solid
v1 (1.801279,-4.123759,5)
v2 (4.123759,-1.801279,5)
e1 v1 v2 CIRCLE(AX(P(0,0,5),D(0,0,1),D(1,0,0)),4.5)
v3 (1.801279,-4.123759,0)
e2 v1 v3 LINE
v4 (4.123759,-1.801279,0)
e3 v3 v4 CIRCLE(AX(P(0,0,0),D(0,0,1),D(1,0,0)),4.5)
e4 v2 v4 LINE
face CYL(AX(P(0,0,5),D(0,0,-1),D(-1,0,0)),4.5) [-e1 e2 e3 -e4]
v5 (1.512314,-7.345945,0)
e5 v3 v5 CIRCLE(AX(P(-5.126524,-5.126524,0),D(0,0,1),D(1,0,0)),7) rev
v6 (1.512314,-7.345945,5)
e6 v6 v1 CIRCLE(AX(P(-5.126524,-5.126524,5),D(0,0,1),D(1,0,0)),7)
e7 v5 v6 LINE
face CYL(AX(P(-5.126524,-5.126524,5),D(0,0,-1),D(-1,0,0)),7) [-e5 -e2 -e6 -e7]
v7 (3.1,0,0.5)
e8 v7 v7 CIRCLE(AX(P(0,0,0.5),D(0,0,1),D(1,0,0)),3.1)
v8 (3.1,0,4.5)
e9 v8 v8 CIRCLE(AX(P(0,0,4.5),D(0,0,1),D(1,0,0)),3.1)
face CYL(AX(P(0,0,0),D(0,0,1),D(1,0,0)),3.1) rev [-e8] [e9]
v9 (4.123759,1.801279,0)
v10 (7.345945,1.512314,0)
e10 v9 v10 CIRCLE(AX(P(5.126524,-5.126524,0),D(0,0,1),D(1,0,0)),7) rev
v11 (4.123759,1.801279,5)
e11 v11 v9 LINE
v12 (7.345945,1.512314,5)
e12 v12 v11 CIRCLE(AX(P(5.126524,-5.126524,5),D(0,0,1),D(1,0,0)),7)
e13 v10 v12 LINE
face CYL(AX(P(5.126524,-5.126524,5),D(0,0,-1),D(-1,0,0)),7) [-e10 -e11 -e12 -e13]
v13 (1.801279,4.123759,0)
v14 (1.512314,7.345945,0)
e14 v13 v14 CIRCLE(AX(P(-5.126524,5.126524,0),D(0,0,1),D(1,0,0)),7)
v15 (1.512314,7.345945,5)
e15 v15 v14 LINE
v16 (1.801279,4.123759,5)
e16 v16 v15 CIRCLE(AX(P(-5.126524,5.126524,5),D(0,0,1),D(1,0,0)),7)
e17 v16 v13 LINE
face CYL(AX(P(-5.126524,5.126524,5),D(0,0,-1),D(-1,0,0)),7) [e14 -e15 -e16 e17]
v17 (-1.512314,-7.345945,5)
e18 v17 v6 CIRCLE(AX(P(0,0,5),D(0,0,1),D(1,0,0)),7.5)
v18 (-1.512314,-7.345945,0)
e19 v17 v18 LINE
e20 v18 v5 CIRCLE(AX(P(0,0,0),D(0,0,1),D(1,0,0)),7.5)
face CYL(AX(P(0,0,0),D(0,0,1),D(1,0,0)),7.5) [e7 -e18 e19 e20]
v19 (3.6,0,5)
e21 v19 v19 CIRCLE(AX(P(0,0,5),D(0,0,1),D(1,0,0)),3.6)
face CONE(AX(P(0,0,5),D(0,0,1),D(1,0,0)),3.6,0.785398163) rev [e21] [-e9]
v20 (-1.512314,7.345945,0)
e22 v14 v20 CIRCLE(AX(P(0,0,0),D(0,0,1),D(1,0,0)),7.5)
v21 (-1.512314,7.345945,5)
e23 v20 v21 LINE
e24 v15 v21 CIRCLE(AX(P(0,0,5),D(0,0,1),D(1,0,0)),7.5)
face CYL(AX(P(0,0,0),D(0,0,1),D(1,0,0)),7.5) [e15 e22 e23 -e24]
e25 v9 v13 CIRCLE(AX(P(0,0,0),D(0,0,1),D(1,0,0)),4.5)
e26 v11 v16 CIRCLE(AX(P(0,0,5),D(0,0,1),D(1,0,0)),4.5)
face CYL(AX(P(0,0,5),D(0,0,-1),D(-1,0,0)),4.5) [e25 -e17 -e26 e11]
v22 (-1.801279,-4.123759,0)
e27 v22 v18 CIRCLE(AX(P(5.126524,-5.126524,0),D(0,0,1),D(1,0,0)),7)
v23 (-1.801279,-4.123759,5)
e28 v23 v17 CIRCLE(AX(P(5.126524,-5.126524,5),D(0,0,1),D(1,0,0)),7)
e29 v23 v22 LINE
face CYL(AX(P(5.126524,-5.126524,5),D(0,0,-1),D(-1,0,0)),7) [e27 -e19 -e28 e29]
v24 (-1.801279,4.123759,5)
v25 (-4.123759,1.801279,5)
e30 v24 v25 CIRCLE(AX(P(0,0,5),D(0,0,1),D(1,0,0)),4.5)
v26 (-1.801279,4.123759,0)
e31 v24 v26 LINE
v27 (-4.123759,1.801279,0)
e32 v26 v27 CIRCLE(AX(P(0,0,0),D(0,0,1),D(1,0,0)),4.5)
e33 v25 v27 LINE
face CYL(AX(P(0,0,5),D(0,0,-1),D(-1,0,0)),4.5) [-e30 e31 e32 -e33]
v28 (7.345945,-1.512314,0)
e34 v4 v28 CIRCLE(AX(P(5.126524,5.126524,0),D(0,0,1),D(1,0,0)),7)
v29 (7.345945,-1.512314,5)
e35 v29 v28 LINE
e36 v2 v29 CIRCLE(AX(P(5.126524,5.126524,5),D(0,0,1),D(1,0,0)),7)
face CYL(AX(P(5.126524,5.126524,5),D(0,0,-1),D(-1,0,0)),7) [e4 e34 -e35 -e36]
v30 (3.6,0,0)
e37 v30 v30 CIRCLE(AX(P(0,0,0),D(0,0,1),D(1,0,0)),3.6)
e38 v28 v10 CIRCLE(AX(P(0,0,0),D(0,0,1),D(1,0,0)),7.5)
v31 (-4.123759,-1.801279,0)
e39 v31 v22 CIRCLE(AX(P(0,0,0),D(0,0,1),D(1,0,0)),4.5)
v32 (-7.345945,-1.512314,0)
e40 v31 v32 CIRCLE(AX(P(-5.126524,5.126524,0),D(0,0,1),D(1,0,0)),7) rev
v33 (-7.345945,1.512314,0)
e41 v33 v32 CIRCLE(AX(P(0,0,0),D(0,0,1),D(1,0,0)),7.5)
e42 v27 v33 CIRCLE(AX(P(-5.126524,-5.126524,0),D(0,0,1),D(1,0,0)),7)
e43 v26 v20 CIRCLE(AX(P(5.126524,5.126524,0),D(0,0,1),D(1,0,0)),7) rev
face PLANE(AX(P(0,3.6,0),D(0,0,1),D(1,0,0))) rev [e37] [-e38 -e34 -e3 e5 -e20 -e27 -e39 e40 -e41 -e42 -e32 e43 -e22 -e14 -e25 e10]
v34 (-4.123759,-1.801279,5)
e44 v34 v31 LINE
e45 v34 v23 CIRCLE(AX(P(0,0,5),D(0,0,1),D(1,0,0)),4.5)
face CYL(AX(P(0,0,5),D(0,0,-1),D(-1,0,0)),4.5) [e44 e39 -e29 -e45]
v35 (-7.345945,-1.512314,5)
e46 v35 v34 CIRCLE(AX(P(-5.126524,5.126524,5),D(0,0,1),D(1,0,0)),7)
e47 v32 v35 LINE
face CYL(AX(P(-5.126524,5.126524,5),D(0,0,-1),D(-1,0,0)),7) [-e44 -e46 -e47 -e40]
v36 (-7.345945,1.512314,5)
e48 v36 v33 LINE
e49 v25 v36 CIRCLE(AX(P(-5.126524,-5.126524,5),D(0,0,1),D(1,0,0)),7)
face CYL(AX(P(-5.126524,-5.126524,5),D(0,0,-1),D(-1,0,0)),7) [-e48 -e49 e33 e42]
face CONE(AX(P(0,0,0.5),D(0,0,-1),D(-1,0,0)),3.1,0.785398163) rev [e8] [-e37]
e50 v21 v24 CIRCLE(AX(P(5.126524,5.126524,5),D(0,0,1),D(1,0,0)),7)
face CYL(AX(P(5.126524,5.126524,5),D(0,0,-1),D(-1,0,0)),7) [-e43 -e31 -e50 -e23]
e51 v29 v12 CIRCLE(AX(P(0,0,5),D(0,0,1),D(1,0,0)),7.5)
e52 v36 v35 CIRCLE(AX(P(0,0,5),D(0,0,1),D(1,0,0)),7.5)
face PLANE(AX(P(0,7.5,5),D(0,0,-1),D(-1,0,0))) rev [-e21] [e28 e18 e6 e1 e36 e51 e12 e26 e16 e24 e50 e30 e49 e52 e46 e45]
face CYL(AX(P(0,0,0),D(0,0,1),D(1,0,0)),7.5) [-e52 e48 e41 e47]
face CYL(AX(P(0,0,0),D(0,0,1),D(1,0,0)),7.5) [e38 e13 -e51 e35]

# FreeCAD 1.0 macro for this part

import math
import FreeCAD as App
import Part
import Sketcher

doc = App.newDocument("Part")
body = doc.addObject("PartDesign::Body", "Body")

# Sketch on YZ plane
sketch1 = body.newObject("Sketcher::SketchObject", "Sketch")
sketch1.AttachmentSupport = (doc.getObject("YZ_Plane"), [""])
sketch1.MapMode = "FlatFace"
sketch1.addGeometry([
    Part.LineSegment(App.Vector(7.5, 5, 0), App.Vector(3.6, 5, 0)),  # 0
    Part.LineSegment(App.Vector(3.6, 5, 0), App.Vector(3.1, 4.5, 0)),  # 1
    Part.LineSegment(App.Vector(3.1, 4.5, 0), App.Vector(3.1, 0.5, 0)),  # 2
    Part.LineSegment(App.Vector(3.1, 0.5, 0), App.Vector(3.6, 0, 0)),  # 3
    Part.LineSegment(App.Vector(3.6, 0, 0), App.Vector(7.5, 0, 0)),  # 4
    Part.LineSegment(App.Vector(7.5, 0, 0), App.Vector(7.5, 5, 0)),  # 5
], False)
sketch1.addConstraint([
    Sketcher.Constraint("Coincident", 0, 2, 1, 1),
    Sketcher.Constraint("Coincident", 1, 2, 2, 1),
    Sketcher.Constraint("Coincident", 2, 2, 3, 1),
    Sketcher.Constraint("Coincident", 3, 2, 4, 1),
    Sketcher.Constraint("Coincident", 4, 2, 5, 1),
    Sketcher.Constraint("Coincident", 5, 2, 0, 1),
    Sketcher.Constraint("Horizontal", 0),
    Sketcher.Constraint("Vertical", 2),
    Sketcher.Constraint("Horizontal", 4),
    Sketcher.Constraint("Vertical", 5),
    Sketcher.Constraint("PointOnObject", 3, 2, -1),
    Sketcher.Constraint("Perpendicular", 1, 3),
    Sketcher.Constraint("Vertical", 0, 2, 3, 2),
    Sketcher.Constraint("Equal", 1, 3),
    Sketcher.Constraint("DistanceY", 2, 2, 2, 1, 4.0),
    Sketcher.Constraint("DistanceY", 5, 1, 5, 2, 5.0),
    Sketcher.Constraint("DistanceX", 0, 2, 0, 1, 3.9),
    Sketcher.Constraint("DistanceX", -1, 1, 0, 2, 3.6),
])
revolution = body.newObject("PartDesign::Revolution", "Revolution")
revolution.Profile = sketch1
revolution.ReferenceAxis = (sketch1, ["V_Axis"])
revolution.Angle = 360

# Sketch on XY plane
sketch2 = body.newObject("Sketcher::SketchObject", "Sketch001")
sketch2.AttachmentSupport = (doc.getObject("XY_Plane"), [""])
sketch2.MapMode = "FlatFace"
sketch2.addGeometry([
    Part.Circle(App.Vector(0, 0, 0), App.Vector(0, 0, 1), 15),  # 0
    Part.ArcOfCircle(Part.Circle(App.Vector(-5.1, 5.1, 0), App.Vector(0, 0, 1), 7), math.radians(-133), math.radians(-82)),  # 1
    Part.ArcOfCircle(Part.Circle(App.Vector(-5.1, -5.1, 0), App.Vector(0, 0, 1), 7), math.radians(82), math.radians(133)),  # 2
    Part.ArcOfCircle(Part.Circle(App.Vector(0, 0, 0), App.Vector(0, 0, 1), 4.5), math.radians(114), math.radians(156)),  # 3
    Part.ArcOfCircle(Part.Circle(App.Vector(5.1, 5.1, 0), App.Vector(0, 0, 1), 7), math.radians(137), math.radians(188)),  # 4
    Part.ArcOfCircle(Part.Circle(App.Vector(-5.1, 5.1, 0), App.Vector(0, 0, 1), 7), math.radians(-8), math.radians(43)),  # 5
    Part.ArcOfCircle(Part.Circle(App.Vector(0, 0, 0), App.Vector(0, 0, 1), 4.5), math.radians(24), math.radians(66)),  # 6
    Part.ArcOfCircle(Part.Circle(App.Vector(5.1, -5.1, 0), App.Vector(0, 0, 1), 7), math.radians(47), math.radians(98)),  # 7
    Part.ArcOfCircle(Part.Circle(App.Vector(5.1, 5.1, 0), App.Vector(0, 0, 1), 7), math.radians(-98), math.radians(-47)),  # 8
    Part.ArcOfCircle(Part.Circle(App.Vector(0, 0, 0), App.Vector(0, 0, 1), 4.5), math.radians(-66), math.radians(-24)),  # 9
    Part.ArcOfCircle(Part.Circle(App.Vector(-5.1, -5.1, 0), App.Vector(0, 0, 1), 7), math.radians(-43), math.radians(8)),  # 10
    Part.ArcOfCircle(Part.Circle(App.Vector(5.1, -5.1, 0), App.Vector(0, 0, 1), 7), math.radians(172), math.radians(223)),  # 11
    Part.ArcOfCircle(Part.Circle(App.Vector(0, 0, 0), App.Vector(0, 0, 1), 4.5), math.radians(-156), math.radians(-114)),  # 12
], False)
sketch2.addConstraint([
    Sketcher.Constraint("Coincident", 1, 1, 2, 2),
    Sketcher.Constraint("Coincident", 2, 1, 3, 2),
    Sketcher.Constraint("Coincident", 3, 1, 4, 2),
    Sketcher.Constraint("Coincident", 4, 1, 5, 2),
    Sketcher.Constraint("Coincident", 5, 1, 6, 2),
    Sketcher.Constraint("Coincident", 6, 1, 7, 2),
    Sketcher.Constraint("Coincident", 7, 1, 8, 2),
    Sketcher.Constraint("Coincident", 8, 1, 9, 2),
    Sketcher.Constraint("Coincident", 9, 1, 10, 2),
    Sketcher.Constraint("Coincident", 10, 1, 11, 2),
    Sketcher.Constraint("Coincident", 11, 1, 12, 2),
    Sketcher.Constraint("Coincident", 12, 1, 1, 2),
    Sketcher.Constraint("Coincident", 0, 3, -1, 1),
    Sketcher.Constraint("Coincident", 3, 3, -1, 1),
    Sketcher.Constraint("Coincident", 6, 3, -1, 1),
    Sketcher.Constraint("Coincident", 9, 3, -1, 1),
    Sketcher.Constraint("Coincident", 12, 3, -1, 1),
    Sketcher.Constraint("Coincident", 5, 3, 1, 3),
    Sketcher.Constraint("Coincident", 8, 3, 4, 3),
    Sketcher.Constraint("Coincident", 10, 3, 2, 3),
    Sketcher.Constraint("Coincident", 11, 3, 7, 3),
    Sketcher.Constraint("Equal", 1, 2),
    Sketcher.Constraint("Equal", 2, 4),
    Sketcher.Constraint("Equal", 4, 5),
    Sketcher.Constraint("Equal", 3, 6),
    Sketcher.Constraint("Equal", 5, 7),
    Sketcher.Constraint("Equal", 7, 8),
    Sketcher.Constraint("Equal", 6, 9),
    Sketcher.Constraint("Equal", 8, 10),
    Sketcher.Constraint("Equal", 10, 11),
    Sketcher.Constraint("Equal", 9, 12),
    Sketcher.Constraint("Symmetric", 2, 3, 4, 3, -1, 1),
    Sketcher.Constraint("Symmetric", 1, 3, 7, 3, -1, 1),
    Sketcher.Constraint("Symmetric", 1, 3, 4, 3, -2),
    Sketcher.Constraint("Diameter", 0, 30.0),
    Sketcher.Constraint("Radius", 1, 7.0),
    Sketcher.Constraint("Radius", 3, 4.5),
    Sketcher.Constraint("DistanceX", 2, 1, -1, 1, 4.123759),
    Sketcher.Constraint("DistanceX", 3, 1, -1, 1, 1.801279),
])
pocket1 = body.newObject("PartDesign::Pocket", "Pocket")
pocket1.Profile = sketch2
pocket1.Length = 5
pocket1.Reversed = True

doc.recompute()
